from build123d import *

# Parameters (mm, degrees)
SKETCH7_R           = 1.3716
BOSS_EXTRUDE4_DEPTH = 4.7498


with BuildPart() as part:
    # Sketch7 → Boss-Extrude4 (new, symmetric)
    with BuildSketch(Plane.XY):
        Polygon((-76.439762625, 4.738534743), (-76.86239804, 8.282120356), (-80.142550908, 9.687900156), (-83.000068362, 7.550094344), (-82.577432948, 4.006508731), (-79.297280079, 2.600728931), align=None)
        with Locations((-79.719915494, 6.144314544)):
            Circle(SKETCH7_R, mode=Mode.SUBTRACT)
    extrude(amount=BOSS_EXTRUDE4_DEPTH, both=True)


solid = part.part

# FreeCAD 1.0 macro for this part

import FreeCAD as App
import Part
import Sketcher

V = App.Vector
Q = App.Units.Quantity


def add_polygon(sketch, points):
    """Adds a closed chain of lines whose ends are joined by coincident constraints."""
    first, n = sketch.GeometryCount, len(points)
    for a, b in zip(points, points[1:] + points[:1]):
        sketch.addGeometry(Part.LineSegment(App.Vector(*a, 0), App.Vector(*b, 0)), False)
    for i in range(n):
        sketch.addConstraint(Sketcher.Constraint("Coincident", first + i, 2, first + (i + 1) % n, 1))

doc = App.newDocument("Part")
params = doc.addObject("Spreadsheet::Sheet", "Params")
for row, (alias, value) in enumerate([
    ("sketch1_diameter", "0.108 in"),
    ("pad1_length", "0.374 in"),
], start=1):
    params.set(f"A{row}", alias)
    params.set(f"B{row}", "=" + value)
    params.setAlias(f"B{row}", alias)

body = doc.addObject("PartDesign::Body", "Body")

# Sketch on XY plane
sketch1 = body.newObject("Sketcher::SketchObject", "Sketch")
sketch1.AttachmentSupport = (doc.getObject("XY_Plane"), [""])
sketch1.MapMode = "FlatFace"
add_polygon(sketch1, [(-76.4, 4.7), (-76.9, 8.3), (-80.1, 9.7), (-83, 7.6), (-82.6, 4), (-79.3, 2.6)])  # lines 0-5
sketch1.addGeometry(Part.Circle(V(-79.7, 6.1, 0), V(0, 0, 1), 1.4), False)  # 6
sketch1.addConstraint(Sketcher.Constraint("Parallel", 0, 3))
sketch1.addConstraint(Sketcher.Constraint("Parallel", 1, 4))
sketch1.addConstraint(Sketcher.Constraint("Parallel", 2, 5))
sketch1.addConstraint(Sketcher.Constraint("Equal", 0, 1))
sketch1.addConstraint(Sketcher.Constraint("Equal", 1, 2))
sketch1.addConstraint(Sketcher.Constraint("Equal", 2, 3))
sketch1.addConstraint(Sketcher.Constraint("Diameter", 6, Q("0.108 in")))
sketch1.addConstraint(Sketcher.Constraint("Distance", 0, Q("0.1405 in")))
sketch1.addConstraint(Sketcher.Constraint("DistanceX", 0, 2, -1, 1, Q("76.862398 mm")))
sketch1.addConstraint(Sketcher.Constraint("DistanceY", -1, 1, 1, 2, Q("9.6879 mm")))
sketch1.addConstraint(Sketcher.Constraint("DistanceY", -1, 1, 0, 2, Q("8.28212 mm")))
sketch1.addConstraint(Sketcher.Constraint("DistanceX", 2, 2, -1, 1, Q("83.000068 mm")))
sketch1.addConstraint(Sketcher.Constraint("DistanceY", -1, 1, 3, 2, Q("4.006509 mm")))
sketch1.addConstraint(Sketcher.Constraint("DistanceY", 6, 3, 2, 2, Q("1.40578 mm")))
sketch1.addConstraint(Sketcher.Constraint("DistanceX", 6, 3, -1, 1, Q("79.719915 mm")))
sketch1.setExpression("Constraints[12]", "Params.sketch1_diameter")
pad1 = body.newObject("PartDesign::Pad", "Pad")
pad1.Profile = sketch1
pad1.setExpression("Length", "Params.pad1_length")
pad1.Midplane = True

doc.recompute()
